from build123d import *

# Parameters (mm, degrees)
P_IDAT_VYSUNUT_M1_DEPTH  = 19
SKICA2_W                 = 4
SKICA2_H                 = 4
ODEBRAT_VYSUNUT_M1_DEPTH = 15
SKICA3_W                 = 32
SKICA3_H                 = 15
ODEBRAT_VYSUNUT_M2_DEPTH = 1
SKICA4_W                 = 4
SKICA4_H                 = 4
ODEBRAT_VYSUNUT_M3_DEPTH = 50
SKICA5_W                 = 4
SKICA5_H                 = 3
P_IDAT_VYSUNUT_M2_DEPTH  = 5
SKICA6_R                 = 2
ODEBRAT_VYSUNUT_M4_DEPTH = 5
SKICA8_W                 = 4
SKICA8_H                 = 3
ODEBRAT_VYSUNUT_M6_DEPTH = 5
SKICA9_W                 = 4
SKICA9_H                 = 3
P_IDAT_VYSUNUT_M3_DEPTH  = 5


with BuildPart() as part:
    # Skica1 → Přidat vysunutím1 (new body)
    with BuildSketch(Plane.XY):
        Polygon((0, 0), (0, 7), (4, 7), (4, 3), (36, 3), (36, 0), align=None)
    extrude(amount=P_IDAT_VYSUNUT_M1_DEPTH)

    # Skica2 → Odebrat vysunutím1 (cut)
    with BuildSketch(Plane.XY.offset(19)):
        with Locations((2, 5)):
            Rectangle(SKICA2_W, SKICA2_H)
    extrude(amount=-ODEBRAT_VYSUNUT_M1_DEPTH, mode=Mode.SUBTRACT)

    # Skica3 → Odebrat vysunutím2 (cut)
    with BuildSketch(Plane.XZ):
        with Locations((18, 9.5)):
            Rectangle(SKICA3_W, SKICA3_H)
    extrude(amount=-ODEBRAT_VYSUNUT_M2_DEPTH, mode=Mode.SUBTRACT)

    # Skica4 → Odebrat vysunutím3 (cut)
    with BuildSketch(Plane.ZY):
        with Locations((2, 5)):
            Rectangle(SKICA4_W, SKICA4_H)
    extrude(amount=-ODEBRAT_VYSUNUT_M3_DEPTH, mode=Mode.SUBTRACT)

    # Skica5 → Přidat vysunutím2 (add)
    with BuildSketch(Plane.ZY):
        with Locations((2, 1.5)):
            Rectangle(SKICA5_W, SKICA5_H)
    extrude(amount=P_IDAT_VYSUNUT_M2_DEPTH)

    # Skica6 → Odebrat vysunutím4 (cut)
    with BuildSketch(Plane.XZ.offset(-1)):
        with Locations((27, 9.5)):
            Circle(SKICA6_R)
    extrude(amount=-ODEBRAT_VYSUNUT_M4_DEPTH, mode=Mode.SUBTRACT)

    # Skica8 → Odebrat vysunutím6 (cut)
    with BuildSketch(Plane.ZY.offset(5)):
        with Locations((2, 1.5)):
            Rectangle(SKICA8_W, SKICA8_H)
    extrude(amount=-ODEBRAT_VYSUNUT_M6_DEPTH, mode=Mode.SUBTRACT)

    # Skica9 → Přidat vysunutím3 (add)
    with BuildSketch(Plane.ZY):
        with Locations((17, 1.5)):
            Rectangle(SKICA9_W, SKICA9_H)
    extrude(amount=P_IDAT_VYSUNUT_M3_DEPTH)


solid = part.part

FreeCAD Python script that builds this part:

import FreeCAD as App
import Part
import Sketcher
from FreeCAD import Vector
Q = App.Units.Quantity


def add_polygon(sketch, points):
    """Adds a closed chain of lines whose ends are joined by coincident constraints."""
    first, n = sketch.GeometryCount, len(points)
    for a, b in zip(points, points[1:] + points[:1]):
        sketch.addGeometry(Part.LineSegment(App.Vector(*a, 0), App.Vector(*b, 0)), False)
    for i in range(n):
        sketch.addConstraint(Sketcher.Constraint("Coincident", first + i, 2, first + (i + 1) % n, 1))

doc = App.newDocument("Part")
body = doc.addObject("PartDesign::Body", "Body")

# Sketch on XY plane
sketch1 = body.newObject("Sketcher::SketchObject", "Sketch")
sketch1.AttachmentSupport = (doc.getObject("XY_Plane"), [""])
sketch1.MapMode = "FlatFace"
add_polygon(sketch1, [(0, 7), (0, 0), (36, 0), (36, 3), (4, 3), (4, 7)])  # lines 0-5
sketch1.addConstraint(Sketcher.Constraint("Vertical", 0))
sketch1.addConstraint(Sketcher.Constraint("Horizontal", 1))
sketch1.addConstraint(Sketcher.Constraint("Vertical", 2))
sketch1.addConstraint(Sketcher.Constraint("Horizontal", 3))
sketch1.addConstraint(Sketcher.Constraint("Vertical", 4))
sketch1.addConstraint(Sketcher.Constraint("Horizontal", 5))
sketch1.addConstraint(Sketcher.Constraint("Coincident", 0, 2, -1, 1))
sketch1.addConstraint(Sketcher.Constraint("Equal", 5, 4))
sketch1.addConstraint(Sketcher.Constraint("DistanceX", 1, 1, 1, 2, Q("36 mm")))
sketch1.addConstraint(Sketcher.Constraint("DistanceX", 3, 2, 3, 1, Q("32 mm")))
sketch1.addConstraint(Sketcher.Constraint("DistanceY", 0, 2, 0, 1, Q("7 mm")))
pad1 = body.newObject("PartDesign::Pad", "Pad")
pad1.Profile = sketch1
pad1.Length = 19

# Sketch on XY plane
sketch2 = body.newObject("Sketcher::SketchObject", "Sketch001")
sketch2.AttachmentSupport = (doc.getObject("XY_Plane"), [""])
sketch2.MapMode = "FlatFace"
sketch2.AttachmentOffset = App.Placement(Vector(0, 0, 19), App.Rotation())
add_polygon(sketch2, [(0, 7), (0, 3), (4, 3), (4, 7)])  # lines 0-3
sketch2.addConstraint(Sketcher.Constraint("Vertical", 0))
sketch2.addConstraint(Sketcher.Constraint("Horizontal", 1))
sketch2.addConstraint(Sketcher.Constraint("Vertical", 2))
sketch2.addConstraint(Sketcher.Constraint("Horizontal", 3))
sketch2.addConstraint(Sketcher.Constraint("PointOnObject", 0, 2, -2))
sketch2.addConstraint(Sketcher.Constraint("Equal", 3, 0))
sketch2.addConstraint(Sketcher.Constraint("DistanceX", 1, 1, 1, 2, Q("4 mm")))
sketch2.addConstraint(Sketcher.Constraint("DistanceY", -1, 1, 0, 2, Q("3 mm")))
pocket1 = body.newObject("PartDesign::Pocket", "Pocket")
pocket1.Profile = sketch2
pocket1.Length = 15

# Sketch on XZ plane
sketch3 = body.newObject("Sketcher::SketchObject", "Sketch002")
sketch3.AttachmentSupport = (doc.getObject("XZ_Plane"), [""])
sketch3.MapMode = "FlatFace"
add_polygon(sketch3, [(2, 17), (2, 2), (34, 2), (34, 17)])  # lines 0-3
sketch3.addConstraint(Sketcher.Constraint("Vertical", 0))
sketch3.addConstraint(Sketcher.Constraint("Horizontal", 1))
sketch3.addConstraint(Sketcher.Constraint("Vertical", 2))
sketch3.addConstraint(Sketcher.Constraint("Horizontal", 3))
sketch3.addConstraint(Sketcher.Constraint("DistanceX", 1, 1, 1, 2, Q("32 mm")))
sketch3.addConstraint(Sketcher.Constraint("DistanceY", 0, 2, 0, 1, Q("15 mm")))
sketch3.addConstraint(Sketcher.Constraint("DistanceX", -1, 1, 0, 2, Q("2 mm")))
sketch3.addConstraint(Sketcher.Constraint("DistanceY", -1, 1, 0, 2, Q("2 mm")))
pocket2 = body.newObject("PartDesign::Pocket", "Pocket001")
pocket2.Profile = sketch3
pocket2.Length = 1

# Sketch on YZ plane
sketch4 = body.newObject("Sketcher::SketchObject", "Sketch003")
sketch4.AttachmentSupport = (doc.getObject("YZ_Plane"), [""])
sketch4.MapMode = "FlatFace"
add_polygon(sketch4, [(7, 0), (3, 0), (3, 4), (7, 4)])  # lines 0-3
sketch4.addConstraint(Sketcher.Constraint("Horizontal", 0))
sketch4.addConstraint(Sketcher.Constraint("Vertical", 1))
sketch4.addConstraint(Sketcher.Constraint("Horizontal", 2))
sketch4.addConstraint(Sketcher.Constraint("Vertical", 3))
sketch4.addConstraint(Sketcher.Constraint("PointOnObject", 0, 2, -1))
sketch4.addConstraint(Sketcher.Constraint("Equal", 2, 1))
sketch4.addConstraint(Sketcher.Constraint("DistanceX", 0, 2, 0, 1, Q("4 mm")))
sketch4.addConstraint(Sketcher.Constraint("DistanceX", -1, 1, 0, 2, Q("3 mm")))
pocket3 = body.newObject("PartDesign::Pocket", "Pocket002")
pocket3.Profile = sketch4
pocket3.Length = 50
pocket3.Reversed = True

# Sketch on YZ plane
sketch5 = body.newObject("Sketcher::SketchObject", "Sketch004")
sketch5.AttachmentSupport = (doc.getObject("YZ_Plane"), [""])
sketch5.MapMode = "FlatFace"
add_polygon(sketch5, [(3, 0), (0, 0), (0, 4), (3, 4)])  # lines 0-3
sketch5.addConstraint(Sketcher.Constraint("Horizontal", 0))
sketch5.addConstraint(Sketcher.Constraint("Vertical", 1))
sketch5.addConstraint(Sketcher.Constraint("Horizontal", 2))
sketch5.addConstraint(Sketcher.Constraint("Vertical", 3))
sketch5.addConstraint(Sketcher.Constraint("Coincident", 0, 2, -1, 1))
sketch5.addConstraint(Sketcher.Constraint("DistanceX", 0, 2, 0, 1, Q("3 mm")))
sketch5.addConstraint(Sketcher.Constraint("DistanceY", 1, 1, 1, 2, Q("4 mm")))
pad2 = body.newObject("PartDesign::Pad", "Pad001")
pad2.Profile = sketch5
pad2.Length = 5
pad2.Reversed = True

# Sketch on XZ plane
sketch6 = body.newObject("Sketcher::SketchObject", "Sketch005")
sketch6.AttachmentSupport = (doc.getObject("XZ_Plane"), [""])
sketch6.MapMode = "FlatFace"
sketch6.AttachmentOffset = App.Placement(Vector(0, 0, -1), App.Rotation())
sketch6.addGeometry(Part.Circle(Vector(27, 9.5, 0), Vector(0, 0, 1), 2), False)
sketch6.addConstraint(Sketcher.Constraint("Diameter", 0, Q("4 mm")))
sketch6.addConstraint(Sketcher.Constraint("DistanceX", -1, 1, 0, 3, Q("27 mm")))
sketch6.addConstraint(Sketcher.Constraint("DistanceY", -1, 1, 0, 3, Q("9.5 mm")))
pocket4 = body.newObject("PartDesign::Pocket", "Pocket003")
pocket4.Profile = sketch6
pocket4.Length = 5

# Sketch on YZ plane
sketch7 = body.newObject("Sketcher::SketchObject", "Sketch006")
sketch7.AttachmentSupport = (doc.getObject("YZ_Plane"), [""])
sketch7.MapMode = "FlatFace"
sketch7.AttachmentOffset = App.Placement(Vector(0, 0, -5), App.Rotation())
add_polygon(sketch7, [(3, 0), (0, 0), (0, 4), (3, 4)])  # lines 0-3
sketch7.addConstraint(Sketcher.Constraint("Horizontal", 0))
sketch7.addConstraint(Sketcher.Constraint("Vertical", 1))
sketch7.addConstraint(Sketcher.Constraint("Horizontal", 2))
sketch7.addConstraint(Sketcher.Constraint("Vertical", 3))
sketch7.addConstraint(Sketcher.Constraint("Coincident", 0, 2, -1, 1))
sketch7.addConstraint(Sketcher.Constraint("DistanceX", 0, 2, 0, 1, Q("3 mm")))
sketch7.addConstraint(Sketcher.Constraint("DistanceY", 1, 1, 1, 2, Q("4 mm")))
pocket5 = body.newObject("PartDesign::Pocket", "Pocket004")
pocket5.Profile = sketch7
pocket5.Length = 5
pocket5.Reversed = True

# Sketch on YZ plane
sketch8 = body.newObject("Sketcher::SketchObject", "Sketch007")
sketch8.AttachmentSupport = (doc.getObject("YZ_Plane"), [""])
sketch8.MapMode = "FlatFace"
add_polygon(sketch8, [(3, 15), (0, 15), (0, 19), (3, 19)])  # lines 0-3
sketch8.addConstraint(Sketcher.Constraint("Horizontal", 0))
sketch8.addConstraint(Sketcher.Constraint("Vertical", 1))
sketch8.addConstraint(Sketcher.Constraint("Horizontal", 2))
sketch8.addConstraint(Sketcher.Constraint("Vertical", 3))
sketch8.addConstraint(Sketcher.Constraint("PointOnObject", 0, 2, -2))
sketch8.addConstraint(Sketcher.Constraint("DistanceX", 0, 2, 0, 1, Q("3 mm")))
sketch8.addConstraint(Sketcher.Constraint("DistanceY", 1, 1, 1, 2, Q("4 mm")))
sketch8.addConstraint(Sketcher.Constraint("DistanceY", -1, 1, 0, 2, Q("15 mm")))
pad3 = body.newObject("PartDesign::Pad", "Pad002")
pad3.Profile = sketch8
pad3.Length = 5
pad3.Reversed = True

doc.recompute()
